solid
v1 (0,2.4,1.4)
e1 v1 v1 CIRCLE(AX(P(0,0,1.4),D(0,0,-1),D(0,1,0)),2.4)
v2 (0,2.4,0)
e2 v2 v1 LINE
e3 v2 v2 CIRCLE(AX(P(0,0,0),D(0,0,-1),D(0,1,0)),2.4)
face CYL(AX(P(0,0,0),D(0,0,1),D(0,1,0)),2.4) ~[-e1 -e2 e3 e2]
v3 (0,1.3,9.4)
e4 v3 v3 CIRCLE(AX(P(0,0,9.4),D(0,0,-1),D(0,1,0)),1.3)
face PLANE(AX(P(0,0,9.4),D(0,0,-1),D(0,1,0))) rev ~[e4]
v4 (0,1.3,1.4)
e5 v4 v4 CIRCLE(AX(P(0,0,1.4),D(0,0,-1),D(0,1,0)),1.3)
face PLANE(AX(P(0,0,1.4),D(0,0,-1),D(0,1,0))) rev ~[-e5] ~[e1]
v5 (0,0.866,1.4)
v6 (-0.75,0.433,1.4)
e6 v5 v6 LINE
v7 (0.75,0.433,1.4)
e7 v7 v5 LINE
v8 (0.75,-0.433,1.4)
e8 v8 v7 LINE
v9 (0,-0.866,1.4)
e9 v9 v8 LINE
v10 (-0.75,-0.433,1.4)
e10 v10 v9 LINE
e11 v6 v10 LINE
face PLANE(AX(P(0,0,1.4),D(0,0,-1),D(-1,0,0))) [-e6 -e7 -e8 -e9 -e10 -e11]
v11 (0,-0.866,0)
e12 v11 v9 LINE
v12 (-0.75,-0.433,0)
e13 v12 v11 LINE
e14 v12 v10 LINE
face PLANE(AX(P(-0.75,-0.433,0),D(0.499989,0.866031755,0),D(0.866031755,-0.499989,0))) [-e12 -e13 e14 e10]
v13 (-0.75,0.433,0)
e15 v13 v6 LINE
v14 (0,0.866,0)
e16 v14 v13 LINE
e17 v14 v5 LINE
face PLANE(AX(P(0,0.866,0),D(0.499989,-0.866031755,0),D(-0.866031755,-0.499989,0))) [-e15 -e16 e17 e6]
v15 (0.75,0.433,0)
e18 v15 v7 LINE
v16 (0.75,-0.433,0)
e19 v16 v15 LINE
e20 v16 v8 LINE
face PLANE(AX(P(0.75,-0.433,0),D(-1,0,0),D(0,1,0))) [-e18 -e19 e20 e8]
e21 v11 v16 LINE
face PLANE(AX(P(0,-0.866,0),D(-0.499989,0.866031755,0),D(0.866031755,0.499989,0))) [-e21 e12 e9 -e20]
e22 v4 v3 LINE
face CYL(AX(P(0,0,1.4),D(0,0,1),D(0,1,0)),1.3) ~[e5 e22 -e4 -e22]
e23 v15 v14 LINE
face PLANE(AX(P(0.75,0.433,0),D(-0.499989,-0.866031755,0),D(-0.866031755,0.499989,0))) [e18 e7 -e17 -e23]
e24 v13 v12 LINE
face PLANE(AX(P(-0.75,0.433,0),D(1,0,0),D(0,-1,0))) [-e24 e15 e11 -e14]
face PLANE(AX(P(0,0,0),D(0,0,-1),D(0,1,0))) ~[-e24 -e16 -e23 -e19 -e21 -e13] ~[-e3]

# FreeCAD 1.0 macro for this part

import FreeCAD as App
import Part
import Sketcher

V = App.Vector
Q = App.Units.Quantity


def add_polygon(sketch, points):
    """Adds a closed chain of lines whose ends are joined by coincident constraints."""
    first, n = sketch.GeometryCount, len(points)
    for a, b in zip(points, points[1:] + points[:1]):
        sketch.addGeometry(Part.LineSegment(App.Vector(*a, 0), App.Vector(*b, 0)), False)
    for i in range(n):
        sketch.addConstraint(Sketcher.Constraint("Coincident", first + i, 2, first + (i + 1) % n, 1))

doc = App.newDocument("Part")
body = doc.addObject("PartDesign::Body", "Body")

# Sketch on YZ plane
sketch1 = doc.addObject("Sketcher::SketchObject", "Sketch")
body.addObject(sketch1)
sketch1.AttachmentSupport = (doc.YZ_Plane, [""])
sketch1.MapMode = "FlatFace"
add_polygon(sketch1, [(1.3, 9.4), (0, 9.4), (0, 0), (2.4, 0), (2.4, 1.4), (1.3, 1.4)])  # lines 0-5
sketch1.addConstraint(Sketcher.Constraint("Horizontal", 0))
sketch1.addConstraint(Sketcher.Constraint("Vertical", 1))
sketch1.addConstraint(Sketcher.Constraint("Horizontal", 2))
sketch1.addConstraint(Sketcher.Constraint("Vertical", 3))
sketch1.addConstraint(Sketcher.Constraint("Horizontal", 4))
sketch1.addConstraint(Sketcher.Constraint("Vertical", 5))
sketch1.addConstraint(Sketcher.Constraint("Coincident", 1, 2, -1, 1))
sketch1.addConstraint(Sketcher.Constraint("DistanceY", 5, 1, 5, 2, 8.0))
sketch1.addConstraint(Sketcher.Constraint("DistanceX", 0, 2, 0, 1, 1.3))
sketch1.addConstraint(Sketcher.Constraint("DistanceX", 2, 1, 2, 2, 2.4))
sketch1.addConstraint(Sketcher.Constraint("DistanceY", 3, 1, 3, 2, 1.4))
revolution = doc.addObject("PartDesign::Revolution", "Revolution")
body.addObject(revolution)
revolution.Profile = sketch1
revolution.ReferenceAxis = (sketch1, ["V_Axis"])
revolution.Angle = 360

# Sketch on XY plane
sketch2 = doc.addObject("Sketcher::SketchObject", "Sketch001")
body.addObject(sketch2)
sketch2.AttachmentSupport = (doc.XY_Plane, [""])
sketch2.MapMode = "FlatFace"
add_polygon(sketch2, [(-0.8, 0.4), (0, 0.9), (0.8, 0.4), (0.8, -0.4), (0, -0.9), (-0.8, -0.4)])  # lines 0-5
sketch2.addConstraint(Sketcher.Constraint("Vertical", 2))
sketch2.addConstraint(Sketcher.Constraint("Vertical", 5))
sketch2.addConstraint(Sketcher.Constraint("Symmetric", 0, 2, 3, 2, -1, 1))
sketch2.addConstraint(Sketcher.Constraint("Symmetric", 1, 2, 4, 2, -1, 1))
sketch2.addConstraint(Sketcher.Constraint("PointOnObject", 0, 2, -2))
sketch2.addConstraint(Sketcher.Constraint("Parallel", 0, 3))
sketch2.addConstraint(Sketcher.Constraint("Horizontal", 2, 2, 4, 2))
sketch2.addConstraint(Sketcher.Constraint("DistanceX", 4, 2, 2, 2, 1.5))
sketch2.addConstraint(Sketcher.Constraint("Angle", 0, Q("29.9993 deg")))
sketch2.addConstraint(Sketcher.Constraint("DistanceY", 2, 2, 2, 1, 0.866))
pocket1 = doc.addObject("PartDesign::Pocket", "Pocket")
body.addObject(pocket1)
pocket1.Profile = sketch2
pocket1.Length = 1.4
pocket1.Reversed = True

doc.recompute()
